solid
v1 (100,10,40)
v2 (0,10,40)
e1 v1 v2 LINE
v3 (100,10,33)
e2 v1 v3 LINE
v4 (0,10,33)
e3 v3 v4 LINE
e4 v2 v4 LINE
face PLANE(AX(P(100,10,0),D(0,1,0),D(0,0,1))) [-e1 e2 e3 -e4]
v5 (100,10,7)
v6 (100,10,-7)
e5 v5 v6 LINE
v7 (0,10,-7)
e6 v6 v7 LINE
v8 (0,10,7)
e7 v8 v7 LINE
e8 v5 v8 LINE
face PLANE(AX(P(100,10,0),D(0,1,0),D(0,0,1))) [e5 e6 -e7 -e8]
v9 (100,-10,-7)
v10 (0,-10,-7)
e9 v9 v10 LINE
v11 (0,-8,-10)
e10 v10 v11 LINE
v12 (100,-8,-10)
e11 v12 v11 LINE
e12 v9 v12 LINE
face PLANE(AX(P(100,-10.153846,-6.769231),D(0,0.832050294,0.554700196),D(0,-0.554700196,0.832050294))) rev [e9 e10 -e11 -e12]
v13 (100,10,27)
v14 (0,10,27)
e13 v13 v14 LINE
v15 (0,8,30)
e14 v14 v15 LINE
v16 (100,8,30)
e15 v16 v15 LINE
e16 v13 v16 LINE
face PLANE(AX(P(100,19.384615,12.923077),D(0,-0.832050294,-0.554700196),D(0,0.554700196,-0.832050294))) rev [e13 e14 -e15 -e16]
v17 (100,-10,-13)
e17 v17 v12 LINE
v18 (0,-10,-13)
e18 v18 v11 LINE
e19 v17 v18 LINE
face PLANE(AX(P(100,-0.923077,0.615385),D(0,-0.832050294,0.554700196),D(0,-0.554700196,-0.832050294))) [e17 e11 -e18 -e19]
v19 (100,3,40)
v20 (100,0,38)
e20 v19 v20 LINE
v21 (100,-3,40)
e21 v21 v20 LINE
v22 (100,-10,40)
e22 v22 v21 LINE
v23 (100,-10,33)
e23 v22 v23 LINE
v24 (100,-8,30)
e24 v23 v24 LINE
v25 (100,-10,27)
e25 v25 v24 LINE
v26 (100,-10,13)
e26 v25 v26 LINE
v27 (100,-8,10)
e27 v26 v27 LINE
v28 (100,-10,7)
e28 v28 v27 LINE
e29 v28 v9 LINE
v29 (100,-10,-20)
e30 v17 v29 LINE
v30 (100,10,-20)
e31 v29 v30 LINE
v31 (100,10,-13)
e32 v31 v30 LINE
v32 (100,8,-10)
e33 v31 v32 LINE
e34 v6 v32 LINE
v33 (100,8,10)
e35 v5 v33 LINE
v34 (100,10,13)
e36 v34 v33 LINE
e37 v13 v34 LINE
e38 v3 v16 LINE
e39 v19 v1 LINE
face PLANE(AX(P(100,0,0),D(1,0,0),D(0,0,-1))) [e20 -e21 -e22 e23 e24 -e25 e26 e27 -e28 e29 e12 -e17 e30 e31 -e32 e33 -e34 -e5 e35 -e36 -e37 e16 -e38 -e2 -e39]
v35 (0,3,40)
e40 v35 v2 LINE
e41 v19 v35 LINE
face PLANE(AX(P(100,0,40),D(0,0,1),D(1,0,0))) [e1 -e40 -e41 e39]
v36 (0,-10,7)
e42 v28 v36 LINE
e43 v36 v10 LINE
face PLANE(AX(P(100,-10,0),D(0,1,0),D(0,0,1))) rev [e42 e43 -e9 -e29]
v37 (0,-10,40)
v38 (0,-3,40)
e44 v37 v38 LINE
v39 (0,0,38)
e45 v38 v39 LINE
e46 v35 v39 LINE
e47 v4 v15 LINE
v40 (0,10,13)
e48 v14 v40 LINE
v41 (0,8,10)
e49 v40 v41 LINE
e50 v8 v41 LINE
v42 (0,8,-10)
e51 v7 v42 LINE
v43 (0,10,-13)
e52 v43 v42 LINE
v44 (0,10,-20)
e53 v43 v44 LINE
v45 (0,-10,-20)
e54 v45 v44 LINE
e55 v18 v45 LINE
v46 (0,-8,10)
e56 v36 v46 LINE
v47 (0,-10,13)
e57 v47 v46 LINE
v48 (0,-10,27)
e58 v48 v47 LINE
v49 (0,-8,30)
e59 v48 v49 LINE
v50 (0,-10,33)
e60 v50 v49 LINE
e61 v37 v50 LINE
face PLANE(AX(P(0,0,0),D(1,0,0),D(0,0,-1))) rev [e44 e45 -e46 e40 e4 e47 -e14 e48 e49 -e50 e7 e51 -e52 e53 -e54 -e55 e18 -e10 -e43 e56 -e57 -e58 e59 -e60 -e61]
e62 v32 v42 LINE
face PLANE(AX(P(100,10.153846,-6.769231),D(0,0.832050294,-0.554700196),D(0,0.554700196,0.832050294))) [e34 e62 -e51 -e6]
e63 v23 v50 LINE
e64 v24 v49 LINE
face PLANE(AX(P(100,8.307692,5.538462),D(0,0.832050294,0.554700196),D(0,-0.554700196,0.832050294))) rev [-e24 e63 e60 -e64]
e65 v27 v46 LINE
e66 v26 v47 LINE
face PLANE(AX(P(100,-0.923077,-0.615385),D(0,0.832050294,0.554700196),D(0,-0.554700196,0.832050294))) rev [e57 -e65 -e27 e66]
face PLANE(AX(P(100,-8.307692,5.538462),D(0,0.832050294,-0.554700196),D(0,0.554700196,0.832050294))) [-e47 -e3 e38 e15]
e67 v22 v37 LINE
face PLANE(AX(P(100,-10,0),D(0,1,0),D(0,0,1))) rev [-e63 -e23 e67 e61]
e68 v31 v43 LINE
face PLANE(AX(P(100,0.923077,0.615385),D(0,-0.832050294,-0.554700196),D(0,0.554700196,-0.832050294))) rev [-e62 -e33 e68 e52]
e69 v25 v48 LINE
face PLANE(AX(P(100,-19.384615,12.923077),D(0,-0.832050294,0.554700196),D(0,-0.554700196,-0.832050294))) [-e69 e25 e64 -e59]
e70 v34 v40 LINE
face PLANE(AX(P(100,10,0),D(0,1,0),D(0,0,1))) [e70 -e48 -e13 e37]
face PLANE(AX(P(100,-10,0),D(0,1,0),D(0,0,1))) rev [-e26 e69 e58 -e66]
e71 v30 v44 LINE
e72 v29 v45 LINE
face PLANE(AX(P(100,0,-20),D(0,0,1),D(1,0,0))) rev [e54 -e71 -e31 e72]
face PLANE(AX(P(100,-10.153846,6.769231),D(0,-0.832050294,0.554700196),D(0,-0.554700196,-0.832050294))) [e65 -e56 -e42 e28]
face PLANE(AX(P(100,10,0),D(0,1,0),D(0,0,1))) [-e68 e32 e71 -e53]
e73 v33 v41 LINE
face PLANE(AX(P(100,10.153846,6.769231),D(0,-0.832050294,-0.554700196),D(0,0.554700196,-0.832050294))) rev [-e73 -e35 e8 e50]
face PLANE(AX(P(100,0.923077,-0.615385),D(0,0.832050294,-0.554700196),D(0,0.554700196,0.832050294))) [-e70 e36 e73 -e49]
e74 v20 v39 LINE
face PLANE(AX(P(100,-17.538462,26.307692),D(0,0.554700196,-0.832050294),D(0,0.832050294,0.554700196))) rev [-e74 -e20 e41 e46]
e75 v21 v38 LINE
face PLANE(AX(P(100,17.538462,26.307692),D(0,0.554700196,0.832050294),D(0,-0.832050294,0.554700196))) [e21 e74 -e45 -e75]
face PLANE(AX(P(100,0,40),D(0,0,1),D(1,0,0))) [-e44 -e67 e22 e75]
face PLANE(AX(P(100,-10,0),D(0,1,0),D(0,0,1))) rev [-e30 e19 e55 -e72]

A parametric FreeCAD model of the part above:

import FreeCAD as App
import Part
import Sketcher


def add_polygon(sketch, points):
    """Adds a closed chain of lines whose ends are joined by coincident constraints."""
    first, n = sketch.GeometryCount, len(points)
    for a, b in zip(points, points[1:] + points[:1]):
        sketch.addGeometry(Part.LineSegment(App.Vector(*a, 0), App.Vector(*b, 0)), False)
    for i in range(n):
        sketch.addConstraint(Sketcher.Constraint("Coincident", first + i, 2, first + (i + 1) % n, 1))

doc = App.newDocument("Part")
body = doc.addObject("PartDesign::Body", "Body")

# Sketch on YZ plane
sketch1 = doc.addObject("Sketcher::SketchObject", "Sketch")
body.addObject(sketch1)
sketch1.AttachmentSupport = (doc.YZ_Plane, [""])
sketch1.MapMode = "FlatFace"
add_polygon(sketch1, [(-3, 40), (-10, 40), (-10, 33), (-8, 30), (-10, 27), (-10, 13), (-8, 10), (-10, 7), (-10, -7), (-8, -10), (-10, -13), (-10, -20), (10, -20), (10, -13), (8, -10), (10, -7), (10, 7), (8, 10), (10, 13), (10, 27), (8, 30), (10, 33), (10, 40), (3, 40), (0, 38)])  # lines 0-24
sketch1.addConstraint([
    Sketcher.Constraint("Horizontal", 0),
    Sketcher.Constraint("Vertical", 1),
    Sketcher.Constraint("Vertical", 4),
    Sketcher.Constraint("Vertical", 7),
    Sketcher.Constraint("Vertical", 10),
    Sketcher.Constraint("Horizontal", 11),
    Sketcher.Constraint("Vertical", 12),
    Sketcher.Constraint("Vertical", 15),
    Sketcher.Constraint("Vertical", 18),
    Sketcher.Constraint("Vertical", 21),
    Sketcher.Constraint("Horizontal", 22),
    Sketcher.Constraint("Symmetric", 4, 2, 12, 2, -1, 1),
    Sketcher.Constraint("Symmetric", 5, 2, 13, 2, -1, 1),
    Sketcher.Constraint("Symmetric", 6, 2, 14, 2, -1, 1),
    Sketcher.Constraint("Symmetric", 8, 2, 16, 2, -1, 1),
    Sketcher.Constraint("Symmetric", 9, 2, 17, 2, -1, 1),
    Sketcher.Constraint("Symmetric", 9, 2, 12, 2, -2),
    Sketcher.Constraint("Symmetric", 8, 2, 13, 2, -2),
    Sketcher.Constraint("Symmetric", 2, 2, 19, 2, -2),
    Sketcher.Constraint("Symmetric", 1, 2, 20, 2, -2),
    Sketcher.Constraint("Symmetric", 22, 2, 24, 2, -2),
    Sketcher.Constraint("PointOnObject", 23, 2, -2),
    Sketcher.Constraint("Parallel", 2, 5),
    Sketcher.Constraint("Parallel", 3, 6),
    Sketcher.Constraint("Parallel", 5, 8),
    Sketcher.Constraint("Parallel", 6, 9),
    Sketcher.Constraint("Parallel", 13, 16),
    Sketcher.Constraint("Parallel", 16, 19),
    Sketcher.Constraint("Perpendicular", 19, 23),
    Sketcher.Constraint("Vertical", 1, 2, 3, 2),
    Sketcher.Constraint("Vertical", 2, 2, 5, 2),
    Sketcher.Constraint("Vertical", 4, 2, 6, 2),
    Sketcher.Constraint("Equal", 22, 1),
    Sketcher.Constraint("Equal", 4, 7),
    Sketcher.Constraint("Equal", 1, 10),
    Sketcher.Constraint("Equal", 20, 23),
    Sketcher.Constraint("DistanceX", 0, 2, 0, 1, 7.0),
    Sketcher.Constraint("DistanceX", 11, 1, 11, 2, 20.0),
    Sketcher.Constraint("DistanceY", 4, 2, 4, 1, 14.0),
    Sketcher.Constraint("DistanceX", 2, 2, -1, 1, 8.0),
])
pad1 = doc.addObject("PartDesign::Pad", "Pad")
body.addObject(pad1)
pad1.Profile = sketch1
pad1.Length = 100

doc.recompute()
